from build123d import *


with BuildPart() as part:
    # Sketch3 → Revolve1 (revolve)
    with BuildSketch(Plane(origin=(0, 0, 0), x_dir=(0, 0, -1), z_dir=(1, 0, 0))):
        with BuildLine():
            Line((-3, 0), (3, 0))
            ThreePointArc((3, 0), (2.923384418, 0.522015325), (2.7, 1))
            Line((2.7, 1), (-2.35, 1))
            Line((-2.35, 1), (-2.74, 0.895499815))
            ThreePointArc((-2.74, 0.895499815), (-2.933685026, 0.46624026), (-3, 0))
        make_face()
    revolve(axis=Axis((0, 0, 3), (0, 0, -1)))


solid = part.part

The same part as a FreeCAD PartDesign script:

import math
import FreeCAD as App
import Part
import Sketcher
Q = App.Units.Quantity

doc = App.newDocument("Part")
body = doc.addObject("PartDesign::Body", "Body")

sketch1 = body.newObject("Sketcher::SketchObject", "Sketch")
sketch1.AttachmentSupport = (doc.getObject("YZ_Plane"), [""])
sketch1.MapMode = "FlatFace"
sketch1.addGeometry(Part.LineSegment(App.Vector(0, 3, 0), App.Vector(0, -3, 0)), False)
sketch1.addGeometry(Part.ArcOfCircle(Part.Circle(App.Vector(0, -1.18, 0), App.Vector(0, 0, 1), 1.82), math.radians(-90), math.radians(-57)), False)
sketch1.addGeometry(Part.LineSegment(App.Vector(1, -2.7, 0), App.Vector(1, 2.35, 0)), False)
sketch1.addGeometry(Part.LineSegment(App.Vector(1, 2.35, 0), App.Vector(0.9, 2.74, 0)), False)
sketch1.addGeometry(Part.ArcOfCircle(Part.Circle(App.Vector(0, 1.33, 0), App.Vector(0, 0, 1), 1.67), math.radians(58), math.radians(90)), False)
sketch1.addConstraint(Sketcher.Constraint("Coincident", 0, 2, 1, 1))
sketch1.addConstraint(Sketcher.Constraint("Coincident", 1, 2, 2, 1))
sketch1.addConstraint(Sketcher.Constraint("Coincident", 2, 2, 3, 1))
sketch1.addConstraint(Sketcher.Constraint("Coincident", 3, 2, 4, 1))
sketch1.addConstraint(Sketcher.Constraint("Coincident", 4, 2, 0, 1))
sketch1.addConstraint(Sketcher.Constraint("Vertical", 0))
sketch1.addConstraint(Sketcher.Constraint("Vertical", 2))
sketch1.addConstraint(Sketcher.Constraint("Symmetric", 0, 2, 4, 2, -1, 1))
sketch1.addConstraint(Sketcher.Constraint("PointOnObject", 1, 3, -2))
sketch1.addConstraint(Sketcher.Constraint("PointOnObject", 4, 3, -2))
sketch1.addConstraint(Sketcher.Constraint("DistanceY", 0, 2, 0, 1, 6.0))
sketch1.addConstraint(Sketcher.Constraint("Angle", 3, Q("105 deg")))
sketch1.addConstraint(Sketcher.Constraint("DistanceX", -1, 1, 1, 2, 1.0))
sketch1.addConstraint(Sketcher.Constraint("DistanceY", 2, 1, 2, 2, 5.05))
sketch1.addConstraint(Sketcher.Constraint("DistanceY", 1, 2, -1, 1, 2.7))
sketch1.addConstraint(Sketcher.Constraint("DistanceY", -1, 1, 3, 2, 2.74))
revolution = body.newObject("PartDesign::Revolution", "Revolution")
revolution.Profile = sketch1
revolution.ReferenceAxis = (sketch1, ["V_Axis"])
revolution.Angle = 360

doc.recompute()
